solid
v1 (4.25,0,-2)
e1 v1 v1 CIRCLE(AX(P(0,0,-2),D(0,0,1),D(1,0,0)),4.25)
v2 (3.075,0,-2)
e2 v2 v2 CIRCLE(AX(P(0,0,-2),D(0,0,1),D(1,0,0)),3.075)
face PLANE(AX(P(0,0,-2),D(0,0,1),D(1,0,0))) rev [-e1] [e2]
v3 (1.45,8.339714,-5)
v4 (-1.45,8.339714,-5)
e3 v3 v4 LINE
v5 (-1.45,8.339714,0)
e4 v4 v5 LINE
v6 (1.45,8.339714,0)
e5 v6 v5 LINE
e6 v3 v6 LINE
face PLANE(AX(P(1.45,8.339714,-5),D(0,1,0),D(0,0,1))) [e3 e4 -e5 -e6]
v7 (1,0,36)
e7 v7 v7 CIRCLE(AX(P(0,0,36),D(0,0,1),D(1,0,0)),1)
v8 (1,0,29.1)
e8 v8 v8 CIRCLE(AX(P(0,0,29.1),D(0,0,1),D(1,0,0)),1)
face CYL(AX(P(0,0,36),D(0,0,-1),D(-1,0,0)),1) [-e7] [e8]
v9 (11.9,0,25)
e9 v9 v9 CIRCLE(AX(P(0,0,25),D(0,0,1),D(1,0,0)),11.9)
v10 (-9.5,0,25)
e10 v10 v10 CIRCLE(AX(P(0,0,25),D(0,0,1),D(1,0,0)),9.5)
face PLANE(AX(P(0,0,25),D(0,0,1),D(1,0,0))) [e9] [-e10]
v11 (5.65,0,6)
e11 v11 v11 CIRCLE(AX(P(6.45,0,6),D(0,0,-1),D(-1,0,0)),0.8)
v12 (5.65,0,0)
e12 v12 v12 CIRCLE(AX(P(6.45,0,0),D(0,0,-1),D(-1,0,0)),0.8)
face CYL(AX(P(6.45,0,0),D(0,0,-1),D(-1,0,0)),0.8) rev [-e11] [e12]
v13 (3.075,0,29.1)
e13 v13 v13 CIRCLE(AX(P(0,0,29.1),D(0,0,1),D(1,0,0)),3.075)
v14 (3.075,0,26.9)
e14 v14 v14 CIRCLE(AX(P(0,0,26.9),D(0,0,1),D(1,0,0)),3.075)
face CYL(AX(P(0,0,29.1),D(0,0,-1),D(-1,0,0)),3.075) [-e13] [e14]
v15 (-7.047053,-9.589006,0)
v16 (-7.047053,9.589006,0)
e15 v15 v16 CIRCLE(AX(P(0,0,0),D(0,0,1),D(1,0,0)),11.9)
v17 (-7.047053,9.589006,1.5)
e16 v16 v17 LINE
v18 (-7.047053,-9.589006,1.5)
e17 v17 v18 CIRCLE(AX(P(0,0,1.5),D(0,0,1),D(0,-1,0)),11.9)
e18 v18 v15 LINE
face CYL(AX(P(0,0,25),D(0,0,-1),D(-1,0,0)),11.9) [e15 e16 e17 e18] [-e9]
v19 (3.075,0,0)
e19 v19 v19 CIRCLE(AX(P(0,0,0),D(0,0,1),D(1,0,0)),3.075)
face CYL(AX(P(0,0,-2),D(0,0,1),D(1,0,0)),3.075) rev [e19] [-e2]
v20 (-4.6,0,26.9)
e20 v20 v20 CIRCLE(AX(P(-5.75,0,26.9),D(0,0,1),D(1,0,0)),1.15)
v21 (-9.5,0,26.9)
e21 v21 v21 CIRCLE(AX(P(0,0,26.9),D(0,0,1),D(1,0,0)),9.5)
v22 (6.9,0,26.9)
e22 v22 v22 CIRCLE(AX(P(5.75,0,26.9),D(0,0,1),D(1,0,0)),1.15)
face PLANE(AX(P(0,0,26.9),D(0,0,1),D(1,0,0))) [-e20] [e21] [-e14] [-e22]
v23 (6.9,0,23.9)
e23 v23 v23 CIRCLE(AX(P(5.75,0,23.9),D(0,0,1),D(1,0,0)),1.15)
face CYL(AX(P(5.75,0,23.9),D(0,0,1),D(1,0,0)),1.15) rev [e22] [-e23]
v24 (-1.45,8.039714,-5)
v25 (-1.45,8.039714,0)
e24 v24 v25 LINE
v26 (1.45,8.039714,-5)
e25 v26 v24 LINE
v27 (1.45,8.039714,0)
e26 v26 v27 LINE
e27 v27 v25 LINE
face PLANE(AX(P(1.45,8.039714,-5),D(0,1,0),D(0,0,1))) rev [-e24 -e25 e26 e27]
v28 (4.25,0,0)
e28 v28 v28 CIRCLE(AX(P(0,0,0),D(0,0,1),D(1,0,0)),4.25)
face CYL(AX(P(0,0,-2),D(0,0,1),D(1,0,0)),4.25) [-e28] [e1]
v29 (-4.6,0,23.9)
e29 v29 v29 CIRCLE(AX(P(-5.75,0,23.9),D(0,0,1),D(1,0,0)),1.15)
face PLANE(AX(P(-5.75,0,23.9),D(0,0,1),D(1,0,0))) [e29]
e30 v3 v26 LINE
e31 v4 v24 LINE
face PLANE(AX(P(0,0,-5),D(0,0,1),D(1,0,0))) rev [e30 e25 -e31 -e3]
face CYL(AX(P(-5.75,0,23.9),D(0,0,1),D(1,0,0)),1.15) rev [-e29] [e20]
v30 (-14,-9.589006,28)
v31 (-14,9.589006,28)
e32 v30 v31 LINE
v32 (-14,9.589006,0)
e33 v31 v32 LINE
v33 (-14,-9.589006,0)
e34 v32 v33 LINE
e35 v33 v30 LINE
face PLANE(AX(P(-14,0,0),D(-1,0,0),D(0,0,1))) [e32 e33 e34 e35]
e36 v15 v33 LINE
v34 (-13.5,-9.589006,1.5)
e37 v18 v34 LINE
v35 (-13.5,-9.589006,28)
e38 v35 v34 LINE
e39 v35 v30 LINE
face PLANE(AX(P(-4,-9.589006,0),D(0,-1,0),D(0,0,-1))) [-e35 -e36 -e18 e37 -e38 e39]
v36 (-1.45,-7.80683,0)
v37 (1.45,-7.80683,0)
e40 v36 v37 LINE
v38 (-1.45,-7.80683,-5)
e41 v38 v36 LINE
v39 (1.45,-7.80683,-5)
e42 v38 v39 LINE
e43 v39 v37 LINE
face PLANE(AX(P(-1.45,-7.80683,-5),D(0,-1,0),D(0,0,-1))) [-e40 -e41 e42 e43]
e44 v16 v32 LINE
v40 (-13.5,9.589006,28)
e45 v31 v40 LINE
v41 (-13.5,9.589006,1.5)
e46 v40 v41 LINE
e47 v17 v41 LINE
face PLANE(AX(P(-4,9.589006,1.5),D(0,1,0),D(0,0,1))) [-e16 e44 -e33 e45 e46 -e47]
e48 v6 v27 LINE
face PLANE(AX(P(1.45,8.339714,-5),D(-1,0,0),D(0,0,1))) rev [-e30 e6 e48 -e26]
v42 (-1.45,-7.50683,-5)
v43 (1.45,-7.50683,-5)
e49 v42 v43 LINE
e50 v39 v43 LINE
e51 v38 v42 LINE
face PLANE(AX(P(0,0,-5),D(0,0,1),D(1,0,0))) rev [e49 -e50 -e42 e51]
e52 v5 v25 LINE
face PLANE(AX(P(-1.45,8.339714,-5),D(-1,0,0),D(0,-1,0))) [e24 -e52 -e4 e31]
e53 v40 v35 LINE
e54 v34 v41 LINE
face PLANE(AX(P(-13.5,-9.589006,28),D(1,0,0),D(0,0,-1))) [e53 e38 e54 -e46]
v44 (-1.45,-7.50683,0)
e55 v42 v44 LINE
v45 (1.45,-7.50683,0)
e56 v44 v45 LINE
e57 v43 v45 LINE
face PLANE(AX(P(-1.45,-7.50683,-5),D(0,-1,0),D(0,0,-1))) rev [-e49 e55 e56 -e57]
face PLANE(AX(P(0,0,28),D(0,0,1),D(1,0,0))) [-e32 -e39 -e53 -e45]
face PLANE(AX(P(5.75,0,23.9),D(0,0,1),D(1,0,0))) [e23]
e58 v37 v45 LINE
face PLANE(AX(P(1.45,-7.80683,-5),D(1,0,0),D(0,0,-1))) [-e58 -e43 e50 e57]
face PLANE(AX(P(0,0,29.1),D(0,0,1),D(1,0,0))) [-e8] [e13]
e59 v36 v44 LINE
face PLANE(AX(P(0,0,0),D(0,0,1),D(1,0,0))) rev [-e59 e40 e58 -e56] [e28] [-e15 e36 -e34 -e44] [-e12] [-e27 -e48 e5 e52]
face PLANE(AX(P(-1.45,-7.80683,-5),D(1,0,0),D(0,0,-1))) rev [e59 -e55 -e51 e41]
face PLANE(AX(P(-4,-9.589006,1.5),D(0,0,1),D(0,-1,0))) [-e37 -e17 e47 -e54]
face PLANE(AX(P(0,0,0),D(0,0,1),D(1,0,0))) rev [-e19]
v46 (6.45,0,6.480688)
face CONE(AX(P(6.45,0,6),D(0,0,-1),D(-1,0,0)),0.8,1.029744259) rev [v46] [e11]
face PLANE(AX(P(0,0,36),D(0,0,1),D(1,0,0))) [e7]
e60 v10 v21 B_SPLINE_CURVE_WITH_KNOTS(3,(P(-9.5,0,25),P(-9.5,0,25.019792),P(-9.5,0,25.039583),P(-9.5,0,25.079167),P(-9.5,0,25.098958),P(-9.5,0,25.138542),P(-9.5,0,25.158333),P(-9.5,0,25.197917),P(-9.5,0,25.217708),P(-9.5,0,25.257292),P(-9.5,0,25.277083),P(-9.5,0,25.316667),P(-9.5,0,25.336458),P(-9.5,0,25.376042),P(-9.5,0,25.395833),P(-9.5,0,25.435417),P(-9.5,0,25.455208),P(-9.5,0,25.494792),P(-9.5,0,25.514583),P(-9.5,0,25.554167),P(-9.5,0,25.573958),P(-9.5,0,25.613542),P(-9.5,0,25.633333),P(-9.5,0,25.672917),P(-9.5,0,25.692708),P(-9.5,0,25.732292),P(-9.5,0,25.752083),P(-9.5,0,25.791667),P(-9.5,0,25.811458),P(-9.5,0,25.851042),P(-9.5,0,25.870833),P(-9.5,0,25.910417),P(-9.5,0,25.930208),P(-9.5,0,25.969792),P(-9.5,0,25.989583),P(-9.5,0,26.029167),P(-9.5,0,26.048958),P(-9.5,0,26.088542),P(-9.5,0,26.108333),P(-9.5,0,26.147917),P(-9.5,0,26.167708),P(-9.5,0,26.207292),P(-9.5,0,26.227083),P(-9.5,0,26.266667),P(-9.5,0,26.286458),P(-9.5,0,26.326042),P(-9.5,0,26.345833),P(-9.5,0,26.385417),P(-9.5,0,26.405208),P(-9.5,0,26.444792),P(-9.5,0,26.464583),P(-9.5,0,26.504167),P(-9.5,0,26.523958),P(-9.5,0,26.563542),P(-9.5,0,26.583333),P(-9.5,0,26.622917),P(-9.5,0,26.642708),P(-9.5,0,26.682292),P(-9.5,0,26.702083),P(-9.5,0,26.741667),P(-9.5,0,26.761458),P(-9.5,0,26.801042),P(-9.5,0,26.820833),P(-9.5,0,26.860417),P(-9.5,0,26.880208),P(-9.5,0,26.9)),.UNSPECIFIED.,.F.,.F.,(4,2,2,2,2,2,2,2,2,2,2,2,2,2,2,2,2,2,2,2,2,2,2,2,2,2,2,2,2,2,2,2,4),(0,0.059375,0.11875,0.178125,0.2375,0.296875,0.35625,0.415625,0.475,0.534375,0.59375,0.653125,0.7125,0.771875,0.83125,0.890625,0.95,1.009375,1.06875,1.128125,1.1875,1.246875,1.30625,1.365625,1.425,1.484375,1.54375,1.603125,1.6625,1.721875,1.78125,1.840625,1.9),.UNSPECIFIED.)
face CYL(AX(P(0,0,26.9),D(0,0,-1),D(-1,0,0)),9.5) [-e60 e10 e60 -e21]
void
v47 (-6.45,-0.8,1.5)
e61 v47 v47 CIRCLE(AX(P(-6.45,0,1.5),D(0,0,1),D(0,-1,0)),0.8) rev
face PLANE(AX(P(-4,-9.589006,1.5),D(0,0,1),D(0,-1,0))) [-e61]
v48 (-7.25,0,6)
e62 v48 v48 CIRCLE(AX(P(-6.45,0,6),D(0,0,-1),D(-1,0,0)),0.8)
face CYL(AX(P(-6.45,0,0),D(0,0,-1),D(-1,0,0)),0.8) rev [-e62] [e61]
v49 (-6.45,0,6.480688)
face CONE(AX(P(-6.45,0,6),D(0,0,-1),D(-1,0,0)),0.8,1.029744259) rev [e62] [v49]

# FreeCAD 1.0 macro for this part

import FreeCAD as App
import Part
import Sketcher

V = App.Vector

doc = App.newDocument("Part")
body = doc.addObject("PartDesign::Body", "Body")

# Sketch on XY plane
sketch1 = body.newObject("Sketcher::SketchObject", "Sketch")
sketch1.AttachmentSupport = (doc.getObject("XY_Plane"), [""])
sketch1.MapMode = "FlatFace"
sketch1.addGeometry(Part.Circle(V(0, 0, 0), V(0, 0, 1), 1), False)
sketch1.addConstraint(Sketcher.Constraint("Coincident", 0, 3, -1, 1))
sketch1.addConstraint(Sketcher.Constraint("Diameter", 0, 2.0))
pad1 = body.newObject("PartDesign::Pad", "Pad")
pad1.Profile = sketch1
pad1.Length = 36

# Sketch on XY plane
sketch2 = body.newObject("Sketcher::SketchObject", "Sketch001")
sketch2.AttachmentSupport = (doc.getObject("XY_Plane"), [""])
sketch2.MapMode = "FlatFace"
sketch2.addGeometry(Part.Circle(V(0, 0, 0), V(0, 0, 1), 3.1), False)
sketch2.addGeometry(Part.Circle(V(0, 0, 0), V(0, 0, 1), 1), False)
sketch2.addConstraint(Sketcher.Constraint("Coincident", 0, 3, -1, 1))
sketch2.addConstraint(Sketcher.Constraint("Coincident", 1, 3, -1, 1))
sketch2.addConstraint(Sketcher.Constraint("Diameter", 1, 2.0))
sketch2.addConstraint(Sketcher.Constraint("Diameter", 0, 6.15))
pad2 = body.newObject("PartDesign::Pad", "Pad001")
pad2.Profile = sketch2
pad2.Length = 29.1

# Sketch on XY plane
sketch3 = body.newObject("Sketcher::SketchObject", "Sketch002")
sketch3.AttachmentSupport = (doc.getObject("XY_Plane"), [""])
sketch3.MapMode = "FlatFace"
sketch3.addGeometry(Part.Circle(V(0, 0, 0), V(0, 0, 1), 4.2), False)
sketch3.addGeometry(Part.Circle(V(0, 0, 0), V(0, 0, 1), 3.1), False)
sketch3.addConstraint(Sketcher.Constraint("Coincident", 0, 3, -1, 1))
sketch3.addConstraint(Sketcher.Constraint("Coincident", 1, 3, -1, 1))
sketch3.addConstraint(Sketcher.Constraint("Diameter", 0, 8.5))
sketch3.addConstraint(Sketcher.Constraint("Diameter", 1, 6.15))
pad3 = body.newObject("PartDesign::Pad", "Pad002")
pad3.Profile = sketch3
pad3.Type = "TwoLengths"
pad3.Length = 26.9
pad3.Length2 = 2

# Sketch on XY plane
sketch4 = body.newObject("Sketcher::SketchObject", "Sketch003")
sketch4.AttachmentSupport = (doc.getObject("XY_Plane"), [""])
sketch4.MapMode = "FlatFace"
sketch4.addGeometry(Part.Circle(V(0, 0, 0), V(0, 0, 1), 9.5), False)
sketch4.addGeometry(Part.Circle(V(0, 0, 0), V(0, 0, 1), 4.2), False)
sketch4.addConstraint(Sketcher.Constraint("Coincident", 0, 3, -1, 1))
sketch4.addConstraint(Sketcher.Constraint("Coincident", 1, 3, -1, 1))
sketch4.addConstraint(Sketcher.Constraint("Diameter", 0, 19.0))
sketch4.addConstraint(Sketcher.Constraint("Diameter", 1, 8.5))
pad4 = body.newObject("PartDesign::Pad", "Pad003")
pad4.Profile = sketch4
pad4.Length = 26.9

# Sketch on XY plane
sketch5 = body.newObject("Sketcher::SketchObject", "Sketch004")
sketch5.AttachmentSupport = (doc.getObject("XY_Plane"), [""])
sketch5.MapMode = "FlatFace"
sketch5.addGeometry(Part.Circle(V(0, 0, 0), V(0, 0, 1), 12), False)
sketch5.addGeometry(Part.Circle(V(0, 0, 0), V(0, 0, 1), 10), False)
sketch5.addConstraint(Sketcher.Constraint("Coincident", 0, 3, -1, 1))
sketch5.addConstraint(Sketcher.Constraint("Coincident", 1, 3, -1, 1))
sketch5.addConstraint(Sketcher.Constraint("Diameter", 1, 19.0))
sketch5.addConstraint(Sketcher.Constraint("Diameter", 0, 23.8))
pad5 = body.newObject("PartDesign::Pad", "Pad004")
pad5.Profile = sketch5
pad5.Length = 25

# Sketch on XY plane
sketch6 = body.newObject("Sketcher::SketchObject", "Sketch005")
sketch6.AttachmentSupport = (doc.getObject("XY_Plane"), [""])
sketch6.MapMode = "FlatFace"
sketch6.addGeometry(Part.LineSegment(V(1.45, -7.51, 0), V(1.45, -7.81, 0)), False)
sketch6.addGeometry(Part.LineSegment(V(1.45, -7.81, 0), V(-1.45, -7.81, 0)), False)
sketch6.addGeometry(Part.LineSegment(V(-1.45, -7.81, 0), V(-1.45, -7.51, 0)), False)
sketch6.addGeometry(Part.LineSegment(V(-1.45, -7.51, 0), V(1.45, -7.51, 0)), False)
sketch6.addGeometry(Part.LineSegment(V(1.45, 8.34, 0), V(1.45, 8.04, 0)), False)
sketch6.addGeometry(Part.LineSegment(V(1.45, 8.04, 0), V(-1.45, 8.04, 0)), False)
sketch6.addGeometry(Part.LineSegment(V(-1.45, 8.04, 0), V(-1.45, 8.34, 0)), False)
sketch6.addGeometry(Part.LineSegment(V(-1.45, 8.34, 0), V(1.45, 8.34, 0)), False)
sketch6.addConstraint(Sketcher.Constraint("Coincident", 0, 2, 1, 1))
sketch6.addConstraint(Sketcher.Constraint("Coincident", 1, 2, 2, 1))
sketch6.addConstraint(Sketcher.Constraint("Coincident", 2, 2, 3, 1))
sketch6.addConstraint(Sketcher.Constraint("Coincident", 3, 2, 0, 1))
sketch6.addConstraint(Sketcher.Constraint("Coincident", 4, 2, 5, 1))
sketch6.addConstraint(Sketcher.Constraint("Coincident", 5, 2, 6, 1))
sketch6.addConstraint(Sketcher.Constraint("Coincident", 6, 2, 7, 1))
sketch6.addConstraint(Sketcher.Constraint("Coincident", 7, 2, 4, 1))
sketch6.addConstraint(Sketcher.Constraint("Vertical", 0))
sketch6.addConstraint(Sketcher.Constraint("Horizontal", 1))
sketch6.addConstraint(Sketcher.Constraint("Vertical", 2))
sketch6.addConstraint(Sketcher.Constraint("Horizontal", 3))
sketch6.addConstraint(Sketcher.Constraint("Vertical", 4))
sketch6.addConstraint(Sketcher.Constraint("Horizontal", 5))
sketch6.addConstraint(Sketcher.Constraint("Vertical", 6))
sketch6.addConstraint(Sketcher.Constraint("Horizontal", 7))
sketch6.addConstraint(Sketcher.Constraint("Vertical", 3, 2, 4, 2))
sketch6.addConstraint(Sketcher.Constraint("Vertical", 2, 2, 5, 2))
sketch6.addConstraint(Sketcher.Constraint("Equal", 2, 4))
sketch6.addConstraint(Sketcher.Constraint("DistanceX", 1, 2, 1, 1, 2.9))
sketch6.addConstraint(Sketcher.Constraint("DistanceY", 0, 2, 0, 1, 0.3))
sketch6.addConstraint(Sketcher.Constraint("DistanceX", -1, 1, 0, 2, 1.45))
sketch6.addConstraint(Sketcher.Constraint("DistanceY", 0, 2, -1, 1, 7.80683))
sketch6.addConstraint(Sketcher.Constraint("DistanceY", -1, 1, 4, 2, 8.039714))
pad6 = body.newObject("PartDesign::Pad", "Pad005")
pad6.Profile = sketch6
pad6.Length = 5
pad6.Reversed = True

# Sketch on XY plane
sketch7 = body.newObject("Sketcher::SketchObject", "Sketch006")
sketch7.AttachmentSupport = (doc.getObject("XY_Plane"), [""])
sketch7.MapMode = "FlatFace"
sketch7.addGeometry(Part.Circle(V(6.5, 0, 0), V(0, 0, 1), 0.8), False)
sketch7.addGeometry(Part.Circle(V(-6.5, 0, 0), V(0, 0, 1), 0.8), False)
sketch7.addConstraint(Sketcher.Constraint("Equal", 0, 1))
sketch7.addConstraint(Sketcher.Constraint("Symmetric", 0, 3, 1, 3, -1, 1))
sketch7.addConstraint(Sketcher.Constraint("PointOnObject", 0, 3, -1))
sketch7.addConstraint(Sketcher.Constraint("Diameter", 0, 1.6))
sketch7.addConstraint(Sketcher.Constraint("DistanceX", 1, 3, 0, 3, 12.9))
doc.recompute()
hole = body.newObject("PartDesign::Hole", "Hole")
hole.Profile = sketch7
hole.ThreadType = "None"
hole.Diameter = 1.6
hole.DepthType = "Dimension"
hole.Depth = 6
hole.DrillPoint = "Angled"
hole.DrillPointAngle = 118
hole.Reversed = True

# Sketch on XY plane
sketch8 = body.newObject("Sketcher::SketchObject", "Sketch007")
sketch8.AttachmentSupport = (doc.getObject("XY_Plane"), [""])
sketch8.MapMode = "FlatFace"
sketch8.AttachmentOffset = App.Placement(V(0, 0, 26.9), App.Rotation())
sketch8.addGeometry(Part.Circle(V(5.8, 0, 0), V(0, 0, 1), 1.1), False)
sketch8.addGeometry(Part.Circle(V(-5.8, 0, 0), V(0, 0, 1), 1.1), False)
sketch8.addConstraint(Sketcher.Constraint("Equal", 0, 1))
sketch8.addConstraint(Sketcher.Constraint("Symmetric", 0, 3, 1, 3, -1, 1))
sketch8.addConstraint(Sketcher.Constraint("PointOnObject", 0, 3, -1))
sketch8.addConstraint(Sketcher.Constraint("Diameter", 0, 2.3))
sketch8.addConstraint(Sketcher.Constraint("DistanceX", 1, 3, 0, 3, 11.5))
pocket1 = body.newObject("PartDesign::Pocket", "Pocket")
pocket1.Profile = sketch8
pocket1.Length = 3
body2 = doc.addObject("PartDesign::Body", "Body001")

# Sketch on XY plane
sketch9 = body2.newObject("Sketcher::SketchObject", "Sketch008")
sketch9.AttachmentSupport = (doc.getObject("XY_Plane001"), [""])
sketch9.MapMode = "FlatFace"
sketch9.addGeometry(Part.LineSegment(V(-13.5, 9.6, 0), V(-13.5, -9.6, 0)), False)
sketch9.addGeometry(Part.LineSegment(V(-13.5, -9.6, 0), V(-14, -9.6, 0)), False)
sketch9.addGeometry(Part.LineSegment(V(-14, -9.6, 0), V(-14, 9.6, 0)), False)
sketch9.addGeometry(Part.LineSegment(V(-14, 9.6, 0), V(-13.5, 9.6, 0)), False)
sketch9.addConstraint(Sketcher.Constraint("Coincident", 0, 2, 1, 1))
sketch9.addConstraint(Sketcher.Constraint("Coincident", 1, 2, 2, 1))
sketch9.addConstraint(Sketcher.Constraint("Coincident", 2, 2, 3, 1))
sketch9.addConstraint(Sketcher.Constraint("Coincident", 3, 2, 0, 1))
sketch9.addConstraint(Sketcher.Constraint("Vertical", 0))
sketch9.addConstraint(Sketcher.Constraint("Horizontal", 1))
sketch9.addConstraint(Sketcher.Constraint("Vertical", 2))
sketch9.addConstraint(Sketcher.Constraint("Horizontal", 3))
sketch9.addConstraint(Sketcher.Constraint("DistanceX", 1, 2, 1, 1, 0.5))
sketch9.addConstraint(Sketcher.Constraint("DistanceX", 1, 2, -1, 1, 14.0))
sketch9.addConstraint(Sketcher.Constraint("DistanceY", 0, 2, 0, 1, 19.178013))
sketch9.addConstraint(Sketcher.Constraint("DistanceY", 0, 2, -1, 1, 9.589006))
pad7 = body2.newObject("PartDesign::Pad", "Pad006")
pad7.Profile = sketch9
pad7.Length = 28
body.AllowCompound = True
doc.recompute()

boolean = body.newObject("PartDesign::Boolean", "Boolean")
boolean.Type = "Fuse"
boolean.addObjects([body2])

# Sketch on YZ plane
sketch10 = body.newObject("Sketcher::SketchObject", "Sketch009")
sketch10.AttachmentSupport = (doc.getObject("YZ_Plane"), [""])
sketch10.MapMode = "FlatFace"
sketch10.AttachmentOffset = App.Placement(V(0, 0, -14), App.Rotation())
sketch10.addGeometry(Part.LineSegment(V(9.6, 0, 0), V(-9.6, 0, 0)), False)
sketch10.addGeometry(Part.LineSegment(V(-9.6, 0, 0), V(-9.6, 1.5, 0)), False)
sketch10.addGeometry(Part.LineSegment(V(-9.6, 1.5, 0), V(9.6, 1.5, 0)), False)
sketch10.addGeometry(Part.LineSegment(V(9.6, 1.5, 0), V(9.6, 0, 0)), False)
sketch10.addConstraint(Sketcher.Constraint("Coincident", 0, 2, 1, 1))
sketch10.addConstraint(Sketcher.Constraint("Coincident", 1, 2, 2, 1))
sketch10.addConstraint(Sketcher.Constraint("Coincident", 2, 2, 3, 1))
sketch10.addConstraint(Sketcher.Constraint("Coincident", 3, 2, 0, 1))
sketch10.addConstraint(Sketcher.Constraint("Horizontal", 0))
sketch10.addConstraint(Sketcher.Constraint("Vertical", 1))
sketch10.addConstraint(Sketcher.Constraint("Horizontal", 2))
sketch10.addConstraint(Sketcher.Constraint("Vertical", 3))
sketch10.addConstraint(Sketcher.Constraint("Symmetric", 0, 2, 3, 2, -1, 1))
sketch10.addConstraint(Sketcher.Constraint("DistanceY", 1, 1, 1, 2, 1.5))
sketch10.addConstraint(Sketcher.Constraint("DistanceX", 0, 2, 0, 1, 19.178013))
pad8 = body.newObject("PartDesign::Pad", "Pad007")
pad8.Profile = sketch10
pad8.Length = 10

doc.recompute()
